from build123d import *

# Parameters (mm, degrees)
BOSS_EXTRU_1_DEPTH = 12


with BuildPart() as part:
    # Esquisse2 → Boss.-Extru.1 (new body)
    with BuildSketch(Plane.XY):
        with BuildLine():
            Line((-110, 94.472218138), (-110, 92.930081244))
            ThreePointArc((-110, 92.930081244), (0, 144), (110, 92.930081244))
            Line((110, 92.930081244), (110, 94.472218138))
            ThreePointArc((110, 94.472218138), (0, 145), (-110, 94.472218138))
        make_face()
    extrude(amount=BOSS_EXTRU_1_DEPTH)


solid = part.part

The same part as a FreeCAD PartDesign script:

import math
import FreeCAD as App
import Part
import Sketcher
from FreeCAD import Vector
Q = App.Units.Quantity

doc = App.newDocument("Part")
body = doc.addObject("PartDesign::Body", "Body")

# Sketch on XY plane
sketch1 = body.newObject("Sketcher::SketchObject", "Sketch")
sketch1.AttachmentSupport = (doc.getObject("XY_Plane"), [""])
sketch1.MapMode = "FlatFace"
sketch1.addGeometry([
    Part.LineSegment(Vector(-110, 94.472218, 0), Vector(-110, 92.930081, 0)),
    Part.ArcOfCircle(Part.Circle(Vector(0, 0, 0), Vector(0, 0, 1), 144), math.radians(40.191756), math.radians(139.808244)),
    Part.LineSegment(Vector(110, 92.930081, 0), Vector(110, 94.472218, 0)),
    Part.ArcOfCircle(Part.Circle(Vector(0, 0, 0), Vector(0, 0, 1), 145), math.radians(40.657249), math.radians(139.342751)),
], False)
sketch1.addConstraint([
    Sketcher.Constraint("Coincident", 0, 2, 1, 2),
    Sketcher.Constraint("Coincident", 1, 1, 2, 1),
    Sketcher.Constraint("Coincident", 2, 2, 3, 1),
    Sketcher.Constraint("Coincident", 3, 2, 0, 1),
    Sketcher.Constraint("Vertical", 0),
    Sketcher.Constraint("Vertical", 2),
    Sketcher.Constraint("Coincident", 1, 3, -1, 1),
    Sketcher.Constraint("Coincident", 3, 3, -1, 1),
    Sketcher.Constraint("Horizontal", 0, 2, 1, 1),
    Sketcher.Constraint("Radius", 1, Q("144 mm")),
    Sketcher.Constraint("Radius", 3, Q("145 mm")),
    Sketcher.Constraint("DistanceX", 0, 2, -1, 1, Q("110 mm")),
])
pad1 = body.newObject("PartDesign::Pad", "Pad")
pad1.Profile = sketch1
pad1.Length = 12

doc.recompute()
